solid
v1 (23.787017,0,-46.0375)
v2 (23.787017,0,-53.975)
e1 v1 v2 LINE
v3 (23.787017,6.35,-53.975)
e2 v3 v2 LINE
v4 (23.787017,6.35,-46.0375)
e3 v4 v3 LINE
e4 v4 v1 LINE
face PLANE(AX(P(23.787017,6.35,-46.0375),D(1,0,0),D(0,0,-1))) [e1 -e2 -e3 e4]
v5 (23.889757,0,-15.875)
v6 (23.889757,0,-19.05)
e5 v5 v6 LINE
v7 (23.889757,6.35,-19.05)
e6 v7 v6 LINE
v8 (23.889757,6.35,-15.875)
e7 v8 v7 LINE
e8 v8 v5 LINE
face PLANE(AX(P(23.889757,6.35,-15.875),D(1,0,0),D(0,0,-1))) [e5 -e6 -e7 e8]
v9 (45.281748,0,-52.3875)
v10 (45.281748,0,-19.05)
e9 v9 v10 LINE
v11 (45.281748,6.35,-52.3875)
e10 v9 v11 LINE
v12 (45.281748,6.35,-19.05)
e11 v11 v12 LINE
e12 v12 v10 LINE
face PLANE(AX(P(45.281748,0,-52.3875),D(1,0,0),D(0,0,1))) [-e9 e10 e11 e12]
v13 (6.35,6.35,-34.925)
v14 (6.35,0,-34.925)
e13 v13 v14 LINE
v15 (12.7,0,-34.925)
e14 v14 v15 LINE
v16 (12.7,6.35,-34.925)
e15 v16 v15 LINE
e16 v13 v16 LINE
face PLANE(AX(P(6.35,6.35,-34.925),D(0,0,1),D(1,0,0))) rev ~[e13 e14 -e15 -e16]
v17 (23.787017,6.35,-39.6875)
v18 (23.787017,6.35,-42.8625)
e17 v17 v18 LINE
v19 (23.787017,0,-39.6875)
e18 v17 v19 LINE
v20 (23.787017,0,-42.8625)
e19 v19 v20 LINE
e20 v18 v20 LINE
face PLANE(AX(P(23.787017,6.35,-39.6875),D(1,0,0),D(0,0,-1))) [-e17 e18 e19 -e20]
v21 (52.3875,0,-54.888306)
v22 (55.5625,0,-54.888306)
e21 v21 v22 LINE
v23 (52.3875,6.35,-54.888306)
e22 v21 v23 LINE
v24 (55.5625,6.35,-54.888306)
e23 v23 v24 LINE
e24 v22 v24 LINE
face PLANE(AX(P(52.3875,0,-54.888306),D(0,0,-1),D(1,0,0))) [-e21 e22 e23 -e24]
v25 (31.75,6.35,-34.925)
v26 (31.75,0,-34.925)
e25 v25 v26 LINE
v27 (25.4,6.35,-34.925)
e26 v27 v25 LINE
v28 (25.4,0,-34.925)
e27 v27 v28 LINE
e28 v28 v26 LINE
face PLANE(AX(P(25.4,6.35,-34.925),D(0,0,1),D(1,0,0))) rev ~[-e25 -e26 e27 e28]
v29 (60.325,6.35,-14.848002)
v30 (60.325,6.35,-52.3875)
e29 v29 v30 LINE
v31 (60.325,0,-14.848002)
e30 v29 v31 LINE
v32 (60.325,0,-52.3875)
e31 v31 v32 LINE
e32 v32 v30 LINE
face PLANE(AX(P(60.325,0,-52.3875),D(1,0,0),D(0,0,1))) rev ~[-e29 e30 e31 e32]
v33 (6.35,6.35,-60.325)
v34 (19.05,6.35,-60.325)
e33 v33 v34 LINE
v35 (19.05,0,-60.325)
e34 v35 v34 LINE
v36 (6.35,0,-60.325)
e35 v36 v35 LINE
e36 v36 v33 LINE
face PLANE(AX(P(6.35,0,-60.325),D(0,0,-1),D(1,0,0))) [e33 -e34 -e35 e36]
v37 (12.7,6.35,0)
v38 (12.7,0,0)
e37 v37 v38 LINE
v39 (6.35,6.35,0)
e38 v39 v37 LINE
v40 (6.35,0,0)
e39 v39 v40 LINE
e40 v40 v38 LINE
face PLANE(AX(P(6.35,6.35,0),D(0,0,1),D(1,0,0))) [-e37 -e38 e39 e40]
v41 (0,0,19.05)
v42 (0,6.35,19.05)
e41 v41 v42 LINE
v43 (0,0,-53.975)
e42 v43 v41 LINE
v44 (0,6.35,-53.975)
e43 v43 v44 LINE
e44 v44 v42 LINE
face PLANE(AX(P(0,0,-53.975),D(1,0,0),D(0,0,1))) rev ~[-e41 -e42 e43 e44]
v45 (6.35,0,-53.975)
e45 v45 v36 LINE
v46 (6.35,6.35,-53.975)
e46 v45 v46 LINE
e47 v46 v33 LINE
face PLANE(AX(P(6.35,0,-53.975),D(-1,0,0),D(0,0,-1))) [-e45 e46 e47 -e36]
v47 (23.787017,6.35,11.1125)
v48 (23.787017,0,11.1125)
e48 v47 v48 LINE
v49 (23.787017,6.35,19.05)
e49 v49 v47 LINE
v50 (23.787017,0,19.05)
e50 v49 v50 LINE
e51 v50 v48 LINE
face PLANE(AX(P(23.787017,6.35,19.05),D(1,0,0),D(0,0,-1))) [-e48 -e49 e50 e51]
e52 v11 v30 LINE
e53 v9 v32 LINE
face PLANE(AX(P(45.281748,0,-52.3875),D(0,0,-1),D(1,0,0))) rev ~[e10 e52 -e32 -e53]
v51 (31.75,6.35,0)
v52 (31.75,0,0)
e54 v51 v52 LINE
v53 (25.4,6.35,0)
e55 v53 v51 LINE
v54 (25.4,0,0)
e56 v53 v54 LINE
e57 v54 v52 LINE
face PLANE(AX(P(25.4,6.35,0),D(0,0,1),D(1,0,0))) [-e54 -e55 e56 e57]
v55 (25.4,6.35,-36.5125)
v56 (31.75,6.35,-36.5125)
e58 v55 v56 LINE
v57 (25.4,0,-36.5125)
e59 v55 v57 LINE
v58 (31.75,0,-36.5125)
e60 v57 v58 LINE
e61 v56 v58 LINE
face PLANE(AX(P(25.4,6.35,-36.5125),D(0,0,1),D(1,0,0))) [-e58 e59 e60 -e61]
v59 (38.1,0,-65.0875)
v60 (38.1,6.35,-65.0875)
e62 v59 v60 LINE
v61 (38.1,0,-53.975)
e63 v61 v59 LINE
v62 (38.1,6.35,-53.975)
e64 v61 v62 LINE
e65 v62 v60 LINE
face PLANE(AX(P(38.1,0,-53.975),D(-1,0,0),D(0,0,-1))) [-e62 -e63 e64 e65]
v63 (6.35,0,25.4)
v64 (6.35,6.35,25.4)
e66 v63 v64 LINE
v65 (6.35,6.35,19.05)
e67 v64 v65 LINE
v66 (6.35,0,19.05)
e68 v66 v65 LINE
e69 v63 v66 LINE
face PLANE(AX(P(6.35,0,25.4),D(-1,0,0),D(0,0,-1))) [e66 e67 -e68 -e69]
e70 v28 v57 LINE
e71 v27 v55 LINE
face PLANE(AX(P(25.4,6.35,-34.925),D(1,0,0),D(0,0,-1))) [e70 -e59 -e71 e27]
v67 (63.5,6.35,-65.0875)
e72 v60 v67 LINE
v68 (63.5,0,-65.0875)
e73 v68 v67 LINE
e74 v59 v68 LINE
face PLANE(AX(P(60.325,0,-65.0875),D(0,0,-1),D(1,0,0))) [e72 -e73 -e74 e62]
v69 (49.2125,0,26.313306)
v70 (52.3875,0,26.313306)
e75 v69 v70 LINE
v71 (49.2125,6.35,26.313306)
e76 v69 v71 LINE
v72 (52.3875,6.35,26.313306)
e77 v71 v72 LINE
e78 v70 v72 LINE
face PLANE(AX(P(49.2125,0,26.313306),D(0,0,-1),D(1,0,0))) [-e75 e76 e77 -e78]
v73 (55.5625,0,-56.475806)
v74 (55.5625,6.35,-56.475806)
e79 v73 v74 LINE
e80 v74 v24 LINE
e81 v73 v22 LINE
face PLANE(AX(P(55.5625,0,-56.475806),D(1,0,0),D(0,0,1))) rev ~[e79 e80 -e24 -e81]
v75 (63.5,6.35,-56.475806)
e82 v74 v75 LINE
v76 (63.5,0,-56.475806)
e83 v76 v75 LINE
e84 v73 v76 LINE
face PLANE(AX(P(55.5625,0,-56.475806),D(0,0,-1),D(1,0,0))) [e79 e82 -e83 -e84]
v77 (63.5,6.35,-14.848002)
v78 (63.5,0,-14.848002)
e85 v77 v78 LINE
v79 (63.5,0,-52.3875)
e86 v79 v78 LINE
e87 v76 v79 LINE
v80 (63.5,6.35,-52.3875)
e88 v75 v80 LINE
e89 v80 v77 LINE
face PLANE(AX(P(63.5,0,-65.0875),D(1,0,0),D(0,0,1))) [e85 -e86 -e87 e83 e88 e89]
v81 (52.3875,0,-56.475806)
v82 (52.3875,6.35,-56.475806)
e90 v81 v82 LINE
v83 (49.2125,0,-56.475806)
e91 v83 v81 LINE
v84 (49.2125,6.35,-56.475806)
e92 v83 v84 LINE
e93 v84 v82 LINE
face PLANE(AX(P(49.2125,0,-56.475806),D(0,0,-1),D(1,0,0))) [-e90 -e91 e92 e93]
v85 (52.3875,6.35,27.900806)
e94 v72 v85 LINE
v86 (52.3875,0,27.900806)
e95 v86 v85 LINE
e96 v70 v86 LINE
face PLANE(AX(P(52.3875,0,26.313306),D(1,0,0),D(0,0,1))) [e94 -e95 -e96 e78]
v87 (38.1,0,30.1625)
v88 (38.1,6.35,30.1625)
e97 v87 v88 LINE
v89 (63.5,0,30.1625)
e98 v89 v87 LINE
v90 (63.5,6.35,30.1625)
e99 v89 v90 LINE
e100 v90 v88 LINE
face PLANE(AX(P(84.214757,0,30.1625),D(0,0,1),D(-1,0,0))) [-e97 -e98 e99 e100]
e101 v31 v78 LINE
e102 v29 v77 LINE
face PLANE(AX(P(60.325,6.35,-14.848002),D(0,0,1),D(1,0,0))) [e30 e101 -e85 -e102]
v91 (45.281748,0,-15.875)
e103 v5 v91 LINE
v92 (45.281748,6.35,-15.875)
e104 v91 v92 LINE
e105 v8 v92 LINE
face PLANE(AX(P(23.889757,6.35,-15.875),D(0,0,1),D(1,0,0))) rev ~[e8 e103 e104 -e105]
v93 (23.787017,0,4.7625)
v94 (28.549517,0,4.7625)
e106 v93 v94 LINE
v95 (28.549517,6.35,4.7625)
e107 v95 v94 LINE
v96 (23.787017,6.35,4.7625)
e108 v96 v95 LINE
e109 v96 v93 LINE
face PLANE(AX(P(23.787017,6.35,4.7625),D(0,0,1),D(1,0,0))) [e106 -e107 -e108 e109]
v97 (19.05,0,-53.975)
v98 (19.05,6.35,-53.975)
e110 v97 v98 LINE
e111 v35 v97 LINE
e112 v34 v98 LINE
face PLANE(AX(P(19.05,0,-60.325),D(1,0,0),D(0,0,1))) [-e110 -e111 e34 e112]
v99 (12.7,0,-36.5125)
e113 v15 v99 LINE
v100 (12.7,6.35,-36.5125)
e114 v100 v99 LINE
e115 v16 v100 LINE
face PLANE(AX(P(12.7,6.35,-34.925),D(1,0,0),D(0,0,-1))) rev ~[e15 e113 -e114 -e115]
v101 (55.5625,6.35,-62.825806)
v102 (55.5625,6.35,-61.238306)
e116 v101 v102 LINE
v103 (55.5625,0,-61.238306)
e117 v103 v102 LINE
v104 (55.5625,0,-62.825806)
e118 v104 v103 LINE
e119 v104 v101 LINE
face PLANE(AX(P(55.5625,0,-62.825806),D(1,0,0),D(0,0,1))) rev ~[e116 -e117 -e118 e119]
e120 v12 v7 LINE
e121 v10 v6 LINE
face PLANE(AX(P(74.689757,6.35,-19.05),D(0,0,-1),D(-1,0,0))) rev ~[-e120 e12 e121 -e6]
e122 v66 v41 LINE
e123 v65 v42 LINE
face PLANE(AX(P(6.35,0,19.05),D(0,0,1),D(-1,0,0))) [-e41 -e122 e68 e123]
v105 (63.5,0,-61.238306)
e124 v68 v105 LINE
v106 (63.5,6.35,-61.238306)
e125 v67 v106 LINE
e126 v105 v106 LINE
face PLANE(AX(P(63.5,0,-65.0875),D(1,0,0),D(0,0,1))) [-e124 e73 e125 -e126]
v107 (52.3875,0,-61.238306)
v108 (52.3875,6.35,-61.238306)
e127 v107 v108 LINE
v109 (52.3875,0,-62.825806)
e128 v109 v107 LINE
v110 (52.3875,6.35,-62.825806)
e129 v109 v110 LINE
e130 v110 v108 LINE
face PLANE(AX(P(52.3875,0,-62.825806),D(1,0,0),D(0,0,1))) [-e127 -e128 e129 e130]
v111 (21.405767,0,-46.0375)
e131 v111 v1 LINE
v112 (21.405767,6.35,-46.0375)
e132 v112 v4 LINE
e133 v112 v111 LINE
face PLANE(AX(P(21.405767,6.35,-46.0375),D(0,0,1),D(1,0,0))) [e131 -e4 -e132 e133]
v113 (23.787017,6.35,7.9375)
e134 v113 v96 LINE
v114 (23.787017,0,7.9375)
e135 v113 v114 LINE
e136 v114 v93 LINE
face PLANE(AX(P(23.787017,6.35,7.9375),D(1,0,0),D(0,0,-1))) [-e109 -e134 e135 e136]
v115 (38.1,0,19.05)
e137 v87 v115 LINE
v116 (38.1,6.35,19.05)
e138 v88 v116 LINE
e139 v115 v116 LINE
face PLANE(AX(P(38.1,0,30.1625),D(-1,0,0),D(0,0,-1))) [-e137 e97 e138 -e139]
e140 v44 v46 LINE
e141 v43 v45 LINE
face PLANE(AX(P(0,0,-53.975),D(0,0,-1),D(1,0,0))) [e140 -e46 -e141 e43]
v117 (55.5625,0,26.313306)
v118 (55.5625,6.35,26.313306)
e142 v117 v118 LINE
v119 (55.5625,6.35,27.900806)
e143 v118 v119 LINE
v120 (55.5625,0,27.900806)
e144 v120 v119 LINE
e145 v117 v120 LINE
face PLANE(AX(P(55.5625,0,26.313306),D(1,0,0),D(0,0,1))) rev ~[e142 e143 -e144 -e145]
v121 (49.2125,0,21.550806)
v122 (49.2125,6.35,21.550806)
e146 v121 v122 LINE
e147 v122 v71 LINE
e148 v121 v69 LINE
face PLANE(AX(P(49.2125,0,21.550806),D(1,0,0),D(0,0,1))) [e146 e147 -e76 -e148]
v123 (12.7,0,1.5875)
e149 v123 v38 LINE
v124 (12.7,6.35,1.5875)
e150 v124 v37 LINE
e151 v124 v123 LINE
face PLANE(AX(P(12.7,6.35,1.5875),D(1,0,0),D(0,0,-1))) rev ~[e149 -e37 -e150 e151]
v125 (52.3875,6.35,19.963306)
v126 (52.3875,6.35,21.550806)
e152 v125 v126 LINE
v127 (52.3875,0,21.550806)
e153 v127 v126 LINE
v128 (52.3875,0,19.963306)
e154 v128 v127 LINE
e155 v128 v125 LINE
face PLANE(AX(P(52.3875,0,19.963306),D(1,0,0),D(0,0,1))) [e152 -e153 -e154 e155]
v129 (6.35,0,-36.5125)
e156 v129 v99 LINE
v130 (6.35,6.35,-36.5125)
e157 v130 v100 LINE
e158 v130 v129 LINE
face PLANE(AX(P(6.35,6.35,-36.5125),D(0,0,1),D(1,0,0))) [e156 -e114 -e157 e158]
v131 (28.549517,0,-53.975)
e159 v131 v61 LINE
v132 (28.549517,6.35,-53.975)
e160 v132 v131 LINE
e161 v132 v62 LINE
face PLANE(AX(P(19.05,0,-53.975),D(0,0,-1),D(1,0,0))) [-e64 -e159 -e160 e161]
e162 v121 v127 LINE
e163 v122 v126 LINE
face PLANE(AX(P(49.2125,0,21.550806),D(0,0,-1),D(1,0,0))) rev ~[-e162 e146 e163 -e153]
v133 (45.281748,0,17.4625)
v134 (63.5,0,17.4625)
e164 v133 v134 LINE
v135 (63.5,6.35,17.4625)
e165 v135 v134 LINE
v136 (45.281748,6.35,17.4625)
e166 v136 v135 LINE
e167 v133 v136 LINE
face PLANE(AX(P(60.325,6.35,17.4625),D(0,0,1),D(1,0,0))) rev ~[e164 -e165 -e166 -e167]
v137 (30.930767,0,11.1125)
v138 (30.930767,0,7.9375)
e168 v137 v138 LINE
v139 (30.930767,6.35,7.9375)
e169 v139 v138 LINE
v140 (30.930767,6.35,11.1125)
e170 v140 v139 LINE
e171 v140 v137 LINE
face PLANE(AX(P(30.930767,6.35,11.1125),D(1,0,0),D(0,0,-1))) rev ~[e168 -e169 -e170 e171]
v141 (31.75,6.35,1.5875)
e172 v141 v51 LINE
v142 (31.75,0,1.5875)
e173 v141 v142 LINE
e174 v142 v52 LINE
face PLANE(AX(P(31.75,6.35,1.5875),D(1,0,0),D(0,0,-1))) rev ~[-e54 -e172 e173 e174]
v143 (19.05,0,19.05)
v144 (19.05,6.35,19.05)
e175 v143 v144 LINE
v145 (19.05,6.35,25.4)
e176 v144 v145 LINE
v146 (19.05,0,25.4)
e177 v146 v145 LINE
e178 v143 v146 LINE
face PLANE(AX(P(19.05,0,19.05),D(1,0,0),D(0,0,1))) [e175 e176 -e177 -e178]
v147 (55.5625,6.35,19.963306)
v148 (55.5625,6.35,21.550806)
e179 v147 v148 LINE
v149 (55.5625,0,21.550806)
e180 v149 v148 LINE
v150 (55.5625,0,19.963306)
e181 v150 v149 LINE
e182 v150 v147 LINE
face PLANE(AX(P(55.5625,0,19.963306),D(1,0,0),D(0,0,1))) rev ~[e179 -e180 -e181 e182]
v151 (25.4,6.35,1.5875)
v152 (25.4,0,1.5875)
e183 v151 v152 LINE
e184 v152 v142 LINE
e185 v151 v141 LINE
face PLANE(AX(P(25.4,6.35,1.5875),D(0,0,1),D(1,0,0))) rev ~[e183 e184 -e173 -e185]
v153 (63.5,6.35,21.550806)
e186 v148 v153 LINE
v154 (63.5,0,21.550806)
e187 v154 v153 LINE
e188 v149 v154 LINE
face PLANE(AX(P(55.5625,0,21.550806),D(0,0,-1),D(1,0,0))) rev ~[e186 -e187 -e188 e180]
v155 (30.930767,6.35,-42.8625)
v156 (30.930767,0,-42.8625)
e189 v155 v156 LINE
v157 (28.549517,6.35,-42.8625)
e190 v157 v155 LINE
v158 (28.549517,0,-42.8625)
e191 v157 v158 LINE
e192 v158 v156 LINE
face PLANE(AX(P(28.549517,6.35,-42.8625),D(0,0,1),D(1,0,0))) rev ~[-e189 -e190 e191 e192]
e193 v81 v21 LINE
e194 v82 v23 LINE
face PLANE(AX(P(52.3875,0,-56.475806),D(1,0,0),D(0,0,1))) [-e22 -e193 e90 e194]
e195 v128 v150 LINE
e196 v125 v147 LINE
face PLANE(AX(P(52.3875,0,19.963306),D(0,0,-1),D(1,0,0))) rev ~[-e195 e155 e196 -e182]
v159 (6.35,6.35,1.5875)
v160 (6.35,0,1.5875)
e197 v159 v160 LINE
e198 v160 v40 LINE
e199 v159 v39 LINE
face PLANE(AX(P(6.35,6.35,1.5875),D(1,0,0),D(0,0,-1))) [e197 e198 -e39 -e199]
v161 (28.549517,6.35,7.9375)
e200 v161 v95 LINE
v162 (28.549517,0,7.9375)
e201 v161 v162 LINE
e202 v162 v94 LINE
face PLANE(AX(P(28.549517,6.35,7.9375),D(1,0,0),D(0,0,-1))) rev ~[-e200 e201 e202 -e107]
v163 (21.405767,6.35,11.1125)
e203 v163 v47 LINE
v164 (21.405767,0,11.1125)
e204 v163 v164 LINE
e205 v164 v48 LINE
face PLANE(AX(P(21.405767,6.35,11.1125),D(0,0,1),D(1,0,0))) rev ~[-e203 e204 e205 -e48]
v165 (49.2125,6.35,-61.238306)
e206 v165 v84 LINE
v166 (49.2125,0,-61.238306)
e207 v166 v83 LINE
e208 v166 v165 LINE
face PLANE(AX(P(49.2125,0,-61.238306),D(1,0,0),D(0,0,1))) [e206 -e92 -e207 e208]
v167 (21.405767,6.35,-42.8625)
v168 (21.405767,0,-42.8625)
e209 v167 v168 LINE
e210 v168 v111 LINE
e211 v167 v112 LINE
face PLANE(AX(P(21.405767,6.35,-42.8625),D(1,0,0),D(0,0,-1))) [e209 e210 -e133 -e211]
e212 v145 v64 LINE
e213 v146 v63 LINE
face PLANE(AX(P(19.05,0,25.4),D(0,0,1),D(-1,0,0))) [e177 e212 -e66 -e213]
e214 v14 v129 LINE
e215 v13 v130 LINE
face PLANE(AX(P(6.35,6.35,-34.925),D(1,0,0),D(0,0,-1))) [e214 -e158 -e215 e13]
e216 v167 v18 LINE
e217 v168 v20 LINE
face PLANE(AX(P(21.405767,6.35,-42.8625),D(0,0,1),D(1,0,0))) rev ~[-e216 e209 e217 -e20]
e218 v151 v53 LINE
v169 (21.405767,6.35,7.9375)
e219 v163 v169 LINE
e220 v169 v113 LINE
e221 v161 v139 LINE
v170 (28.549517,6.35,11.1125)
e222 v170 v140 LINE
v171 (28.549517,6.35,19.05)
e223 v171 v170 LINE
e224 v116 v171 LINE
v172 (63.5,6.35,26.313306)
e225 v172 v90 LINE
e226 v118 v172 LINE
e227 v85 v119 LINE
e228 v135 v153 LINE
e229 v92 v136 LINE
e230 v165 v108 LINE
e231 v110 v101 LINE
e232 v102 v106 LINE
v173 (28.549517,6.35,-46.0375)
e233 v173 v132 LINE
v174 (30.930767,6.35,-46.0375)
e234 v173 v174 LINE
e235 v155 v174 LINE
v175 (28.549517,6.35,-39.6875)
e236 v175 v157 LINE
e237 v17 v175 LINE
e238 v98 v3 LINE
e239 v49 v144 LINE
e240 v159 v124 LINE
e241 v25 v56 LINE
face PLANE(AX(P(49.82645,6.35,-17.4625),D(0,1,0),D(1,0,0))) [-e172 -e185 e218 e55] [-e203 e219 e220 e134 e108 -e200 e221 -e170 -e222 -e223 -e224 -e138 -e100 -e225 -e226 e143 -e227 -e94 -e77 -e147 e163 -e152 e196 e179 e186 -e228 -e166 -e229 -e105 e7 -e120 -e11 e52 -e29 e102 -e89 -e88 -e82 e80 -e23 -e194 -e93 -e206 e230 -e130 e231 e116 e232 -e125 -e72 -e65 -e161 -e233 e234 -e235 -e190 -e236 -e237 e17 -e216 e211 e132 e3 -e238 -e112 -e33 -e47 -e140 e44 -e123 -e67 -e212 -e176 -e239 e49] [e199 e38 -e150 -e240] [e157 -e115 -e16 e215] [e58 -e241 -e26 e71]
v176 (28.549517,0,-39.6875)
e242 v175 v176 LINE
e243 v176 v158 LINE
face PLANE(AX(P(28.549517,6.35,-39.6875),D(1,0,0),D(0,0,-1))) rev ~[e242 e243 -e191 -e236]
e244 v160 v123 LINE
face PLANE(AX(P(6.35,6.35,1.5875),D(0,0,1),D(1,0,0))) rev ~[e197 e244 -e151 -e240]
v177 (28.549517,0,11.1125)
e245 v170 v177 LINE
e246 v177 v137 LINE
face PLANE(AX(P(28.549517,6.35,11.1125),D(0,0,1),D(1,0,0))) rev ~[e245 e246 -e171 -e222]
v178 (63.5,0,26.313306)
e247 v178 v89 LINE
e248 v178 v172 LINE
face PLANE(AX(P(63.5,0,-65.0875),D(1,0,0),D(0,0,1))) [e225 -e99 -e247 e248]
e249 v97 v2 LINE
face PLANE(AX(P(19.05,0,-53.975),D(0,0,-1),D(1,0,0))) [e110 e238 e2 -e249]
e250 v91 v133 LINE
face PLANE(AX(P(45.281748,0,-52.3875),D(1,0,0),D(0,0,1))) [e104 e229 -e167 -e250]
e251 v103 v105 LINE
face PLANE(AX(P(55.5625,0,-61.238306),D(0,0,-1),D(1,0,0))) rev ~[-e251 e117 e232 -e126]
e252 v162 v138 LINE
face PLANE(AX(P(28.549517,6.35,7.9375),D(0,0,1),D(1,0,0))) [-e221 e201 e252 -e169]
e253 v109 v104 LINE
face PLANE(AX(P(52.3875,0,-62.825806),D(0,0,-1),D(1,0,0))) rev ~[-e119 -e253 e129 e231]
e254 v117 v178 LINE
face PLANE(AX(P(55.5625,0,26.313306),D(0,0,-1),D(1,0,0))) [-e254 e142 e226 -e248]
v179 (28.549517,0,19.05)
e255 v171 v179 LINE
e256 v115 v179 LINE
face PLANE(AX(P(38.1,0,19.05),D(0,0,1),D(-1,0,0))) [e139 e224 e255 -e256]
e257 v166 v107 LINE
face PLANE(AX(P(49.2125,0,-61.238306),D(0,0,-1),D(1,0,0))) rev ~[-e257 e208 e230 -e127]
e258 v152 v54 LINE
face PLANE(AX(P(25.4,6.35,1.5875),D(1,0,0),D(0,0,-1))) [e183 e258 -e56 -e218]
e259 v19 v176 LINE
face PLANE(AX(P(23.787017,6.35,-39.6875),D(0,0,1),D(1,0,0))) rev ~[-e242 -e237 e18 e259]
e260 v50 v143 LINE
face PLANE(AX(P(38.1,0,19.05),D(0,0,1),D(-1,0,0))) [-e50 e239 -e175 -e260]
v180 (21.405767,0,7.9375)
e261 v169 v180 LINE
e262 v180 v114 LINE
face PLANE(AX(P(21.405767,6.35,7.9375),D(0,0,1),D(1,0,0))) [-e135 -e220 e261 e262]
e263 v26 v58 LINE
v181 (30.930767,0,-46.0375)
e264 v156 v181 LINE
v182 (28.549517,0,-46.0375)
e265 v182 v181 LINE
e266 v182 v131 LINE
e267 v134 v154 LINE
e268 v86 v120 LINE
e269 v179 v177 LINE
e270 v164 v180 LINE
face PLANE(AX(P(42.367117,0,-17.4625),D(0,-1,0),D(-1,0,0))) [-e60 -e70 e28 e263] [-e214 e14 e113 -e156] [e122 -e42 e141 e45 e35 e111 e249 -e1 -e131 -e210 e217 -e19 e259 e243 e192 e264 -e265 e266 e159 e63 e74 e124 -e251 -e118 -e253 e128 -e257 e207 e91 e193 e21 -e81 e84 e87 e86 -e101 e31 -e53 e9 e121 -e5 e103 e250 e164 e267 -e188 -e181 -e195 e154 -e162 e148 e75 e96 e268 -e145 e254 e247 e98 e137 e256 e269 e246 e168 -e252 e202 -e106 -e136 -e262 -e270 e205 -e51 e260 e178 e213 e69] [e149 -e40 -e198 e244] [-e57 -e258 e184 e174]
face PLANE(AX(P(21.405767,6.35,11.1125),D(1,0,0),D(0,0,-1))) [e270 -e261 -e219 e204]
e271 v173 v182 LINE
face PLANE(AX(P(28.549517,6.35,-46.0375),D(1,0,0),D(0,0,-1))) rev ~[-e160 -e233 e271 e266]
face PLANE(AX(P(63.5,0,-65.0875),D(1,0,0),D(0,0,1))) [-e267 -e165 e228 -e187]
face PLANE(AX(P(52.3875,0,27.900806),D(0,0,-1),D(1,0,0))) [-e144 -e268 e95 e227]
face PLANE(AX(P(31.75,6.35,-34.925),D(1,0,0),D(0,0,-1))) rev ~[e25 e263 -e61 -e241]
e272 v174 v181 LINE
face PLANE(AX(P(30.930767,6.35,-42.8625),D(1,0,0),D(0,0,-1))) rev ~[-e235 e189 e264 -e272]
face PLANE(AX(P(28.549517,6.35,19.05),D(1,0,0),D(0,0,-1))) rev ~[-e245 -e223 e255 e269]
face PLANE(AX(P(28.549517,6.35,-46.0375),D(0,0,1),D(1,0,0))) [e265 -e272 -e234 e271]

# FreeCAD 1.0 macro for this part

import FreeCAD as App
import Part
import Sketcher
Q = App.Units.Quantity

doc = App.newDocument("Part")
body = doc.addObject("PartDesign::Body", "Body")

sketch1 = body.newObject("Sketcher::SketchObject", "Sketch")
sketch1.AttachmentSupport = (doc.getObject("XZ_Plane"), [""])
sketch1.MapMode = "FlatFace"
sketch1.addGeometry([
    Part.LineSegment(App.Vector(84.2, -65.1, 0), App.Vector(38.1, -65.1, 0)),
    Part.LineSegment(App.Vector(38.1, -65.1, 0), App.Vector(38.1, -54, 0)),
    Part.LineSegment(App.Vector(38.1, -54, 0), App.Vector(19.1, -54, 0)),
    Part.LineSegment(App.Vector(19.1, -54, 0), App.Vector(19.1, -60.3, 0)),
    Part.LineSegment(App.Vector(19.1, -60.3, 0), App.Vector(6.3, -60.3, 0)),
    Part.LineSegment(App.Vector(6.3, -60.3, 0), App.Vector(6.3, -54, 0)),
    Part.LineSegment(App.Vector(6.3, -54, 0), App.Vector(0, -54, 0)),
    Part.LineSegment(App.Vector(0, -54, 0), App.Vector(0, 19.1, 0)),
    Part.LineSegment(App.Vector(0, 19.1, 0), App.Vector(6.3, 19.1, 0)),
    Part.LineSegment(App.Vector(6.3, 19.1, 0), App.Vector(6.3, 25.4, 0)),
    Part.LineSegment(App.Vector(6.3, 25.4, 0), App.Vector(19.1, 25.4, 0)),
    Part.LineSegment(App.Vector(19.1, 25.4, 0), App.Vector(19.1, 19.1, 0)),
    Part.LineSegment(App.Vector(19.1, 19.1, 0), App.Vector(38.1, 19.1, 0)),
    Part.LineSegment(App.Vector(38.1, 19.1, 0), App.Vector(38.1, 30.2, 0)),
    Part.LineSegment(App.Vector(38.1, 30.2, 0), App.Vector(84.2, 30.2, 0)),
    Part.LineSegment(App.Vector(84.2, 30.2, 0), App.Vector(84.2, -65.1, 0)),
    Part.LineSegment(App.Vector(38.1, -34.9, 0), App.Vector(44.5, -38.6, 0)),
    Part.LineSegment(App.Vector(44.5, -38.6, 0), App.Vector(44.5, -52.4, 0)),
    Part.LineSegment(App.Vector(44.5, -52.4, 0), App.Vector(74.7, -52.4, 0)),
    Part.LineSegment(App.Vector(74.7, -52.4, 0), App.Vector(77.9, -50.8, 0)),
    Part.LineSegment(App.Vector(77.9, -50.8, 0), App.Vector(77.9, 15.9, 0)),
    Part.LineSegment(App.Vector(77.9, 15.9, 0), App.Vector(74.7, 17.5, 0)),
    Part.LineSegment(App.Vector(74.7, 17.5, 0), App.Vector(44.5, 17.5, 0)),
    Part.LineSegment(App.Vector(44.5, 17.5, 0), App.Vector(44.5, 3.7, 0)),
    Part.LineSegment(App.Vector(44.5, 3.7, 0), App.Vector(38.1, 0, 0)),
    Part.LineSegment(App.Vector(38.1, 0, 0), App.Vector(38.1, -34.9, 0)),
], False)
sketch1.addConstraint([
    Sketcher.Constraint("Coincident", 0, 2, 1, 1),
    Sketcher.Constraint("Coincident", 1, 2, 2, 1),
    Sketcher.Constraint("Coincident", 2, 2, 3, 1),
    Sketcher.Constraint("Coincident", 3, 2, 4, 1),
    Sketcher.Constraint("Coincident", 4, 2, 5, 1),
    Sketcher.Constraint("Coincident", 5, 2, 6, 1),
    Sketcher.Constraint("Coincident", 6, 2, 7, 1),
    Sketcher.Constraint("Coincident", 7, 2, 8, 1),
    Sketcher.Constraint("Coincident", 8, 2, 9, 1),
    Sketcher.Constraint("Coincident", 9, 2, 10, 1),
    Sketcher.Constraint("Coincident", 10, 2, 11, 1),
    Sketcher.Constraint("Coincident", 11, 2, 12, 1),
    Sketcher.Constraint("Coincident", 12, 2, 13, 1),
    Sketcher.Constraint("Coincident", 13, 2, 14, 1),
    Sketcher.Constraint("Coincident", 14, 2, 15, 1),
    Sketcher.Constraint("Coincident", 15, 2, 0, 1),
    Sketcher.Constraint("Coincident", 16, 2, 17, 1),
    Sketcher.Constraint("Coincident", 17, 2, 18, 1),
    Sketcher.Constraint("Coincident", 18, 2, 19, 1),
    Sketcher.Constraint("Coincident", 19, 2, 20, 1),
    Sketcher.Constraint("Coincident", 20, 2, 21, 1),
    Sketcher.Constraint("Coincident", 21, 2, 22, 1),
    Sketcher.Constraint("Coincident", 22, 2, 23, 1),
    Sketcher.Constraint("Coincident", 23, 2, 24, 1),
    Sketcher.Constraint("Coincident", 24, 2, 25, 1),
    Sketcher.Constraint("Coincident", 25, 2, 16, 1),
    Sketcher.Constraint("Horizontal", 0),
    Sketcher.Constraint("Vertical", 1),
    Sketcher.Constraint("Horizontal", 2),
    Sketcher.Constraint("Vertical", 3),
    Sketcher.Constraint("Horizontal", 4),
    Sketcher.Constraint("Vertical", 5),
    Sketcher.Constraint("Horizontal", 6),
    Sketcher.Constraint("Vertical", 7),
    Sketcher.Constraint("Horizontal", 8),
    Sketcher.Constraint("Vertical", 9),
    Sketcher.Constraint("Horizontal", 10),
    Sketcher.Constraint("Vertical", 11),
    Sketcher.Constraint("Horizontal", 12),
    Sketcher.Constraint("Vertical", 13),
    Sketcher.Constraint("Horizontal", 14),
    Sketcher.Constraint("Vertical", 15),
    Sketcher.Constraint("Vertical", 17),
    Sketcher.Constraint("Horizontal", 18),
    Sketcher.Constraint("Vertical", 20),
    Sketcher.Constraint("Horizontal", 22),
    Sketcher.Constraint("Vertical", 23),
    Sketcher.Constraint("Vertical", 25),
    Sketcher.Constraint("PointOnObject", 6, 2, -2),
    Sketcher.Constraint("PointOnObject", 24, 2, -1),
    Sketcher.Constraint("Horizontal", 2, 2, 5, 2),
    Sketcher.Constraint("Horizontal", 8, 2, 11, 2),
    Sketcher.Constraint("Vertical", 5, 2, 8, 2),
    Sketcher.Constraint("Vertical", 3, 2, 10, 2),
    Sketcher.Constraint("Vertical", 1, 2, 12, 2),
    Sketcher.Constraint("Vertical", 18, 2, 21, 2),
    Sketcher.Constraint("Vertical", 17, 2, 22, 2),
    Sketcher.Constraint("Vertical", 13, 2, 24, 2),
    Sketcher.Constraint("Equal", 8, 3),
    Sketcher.Constraint("Equal", 5, 9),
    Sketcher.Constraint("Equal", 1, 13),
    Sketcher.Constraint("Equal", 17, 23),
    Sketcher.Constraint("Equal", 19, 21),
    Sketcher.Constraint("Equal", 16, 24),
    Sketcher.Constraint("DistanceX", 4, 2, 4, 1, Q("0.5 in")),
    Sketcher.Constraint("DistanceY", -1, 1, 9, 2, Q("1 in")),
    Sketcher.Constraint("DistanceY", 19, 2, -1, 1, Q("2 in")),
    Sketcher.Constraint("Angle", 16, Q("-30 deg")),
    Sketcher.Constraint("DistanceX", 2, 2, 16, 2, Q("1 in")),
    Sketcher.Constraint("DistanceX", 2, 2, 2, 1, Q("0.75 in")),
    Sketcher.Constraint("DistanceX", 6, 2, 6, 1, Q("0.25 in")),
    Sketcher.Constraint("DistanceY", 15, 2, 15, 1, Q("3.75 in")),
    Sketcher.Constraint("DistanceY", 0, 2, 17, 2, Q("0.5 in")),
    Sketcher.Constraint("DistanceY", 21, 2, 14, 2, Q("0.5 in")),
    Sketcher.Constraint("DistanceY", 1, 1, 1, 2, Q("0.4375 in")),
    Sketcher.Constraint("DistanceX", 19, 2, 15, 2, Q("0.25 in")),
    Sketcher.Constraint("DistanceX", 18, 2, 15, 2, Q("0.375 in")),
    Sketcher.Constraint("DistanceX", 0, 2, 0, 1, 46.114757),
])
pad1 = body.newObject("PartDesign::Pad", "Pad")
pad1.Profile = sketch1
pad1.Length = Q("0.25 in")
pad1.Reversed = True

sketch2 = body.newObject("Sketcher::SketchObject", "Sketch001")
sketch2.AttachmentSupport = (doc.getObject("XZ_Plane"), [""])
sketch2.MapMode = "FlatFace"
sketch2.AttachmentOffset = App.Placement(App.Vector(0, 0, -0.25 * 25.4), App.Rotation())
sketch2.addGeometry([
    Part.LineSegment(App.Vector(6.3, -36.5, 0), App.Vector(6.3, -34.9, 0)),
    Part.LineSegment(App.Vector(6.3, -34.9, 0), App.Vector(12.7, -34.9, 0)),
    Part.LineSegment(App.Vector(12.7, -34.9, 0), App.Vector(12.7, -36.5, 0)),
    Part.LineSegment(App.Vector(12.7, -36.5, 0), App.Vector(6.3, -36.5, 0)),
    Part.LineSegment(App.Vector(6.3, 0, 0), App.Vector(6.3, 1.6, 0)),
    Part.LineSegment(App.Vector(6.3, 1.6, 0), App.Vector(12.7, 1.6, 0)),
    Part.LineSegment(App.Vector(12.7, 1.6, 0), App.Vector(12.7, 0, 0)),
    Part.LineSegment(App.Vector(12.7, 0, 0), App.Vector(6.3, 0, 0)),
    Part.LineSegment(App.Vector(25.4, -36.5, 0), App.Vector(25.4, -34.9, 0)),
    Part.LineSegment(App.Vector(25.4, -34.9, 0), App.Vector(31.8, -34.9, 0)),
    Part.LineSegment(App.Vector(31.8, -34.9, 0), App.Vector(31.8, -36.5, 0)),
    Part.LineSegment(App.Vector(31.8, -36.5, 0), App.Vector(25.4, -36.5, 0)),
    Part.LineSegment(App.Vector(25.4, 0, 0), App.Vector(25.4, 1.6, 0)),
    Part.LineSegment(App.Vector(25.4, 1.6, 0), App.Vector(31.8, 1.6, 0)),
    Part.LineSegment(App.Vector(31.8, 1.6, 0), App.Vector(31.8, 0, 0)),
    Part.LineSegment(App.Vector(31.8, 0, 0), App.Vector(25.4, 0, 0)),
], False)
sketch2.addConstraint([
    Sketcher.Constraint("Coincident", 0, 2, 1, 1),
    Sketcher.Constraint("Coincident", 1, 2, 2, 1),
    Sketcher.Constraint("Coincident", 2, 2, 3, 1),
    Sketcher.Constraint("Coincident", 3, 2, 0, 1),
    Sketcher.Constraint("Coincident", 4, 2, 5, 1),
    Sketcher.Constraint("Coincident", 5, 2, 6, 1),
    Sketcher.Constraint("Coincident", 6, 2, 7, 1),
    Sketcher.Constraint("Coincident", 7, 2, 4, 1),
    Sketcher.Constraint("Coincident", 8, 2, 9, 1),
    Sketcher.Constraint("Coincident", 9, 2, 10, 1),
    Sketcher.Constraint("Coincident", 10, 2, 11, 1),
    Sketcher.Constraint("Coincident", 11, 2, 8, 1),
    Sketcher.Constraint("Coincident", 12, 2, 13, 1),
    Sketcher.Constraint("Coincident", 13, 2, 14, 1),
    Sketcher.Constraint("Coincident", 14, 2, 15, 1),
    Sketcher.Constraint("Coincident", 15, 2, 12, 1),
    Sketcher.Constraint("Vertical", 0),
    Sketcher.Constraint("Horizontal", 1),
    Sketcher.Constraint("Vertical", 2),
    Sketcher.Constraint("Horizontal", 3),
    Sketcher.Constraint("Vertical", 4),
    Sketcher.Constraint("Horizontal", 5),
    Sketcher.Constraint("Vertical", 6),
    Sketcher.Constraint("Horizontal", 7),
    Sketcher.Constraint("Vertical", 8),
    Sketcher.Constraint("Horizontal", 9),
    Sketcher.Constraint("Vertical", 10),
    Sketcher.Constraint("Horizontal", 11),
    Sketcher.Constraint("Vertical", 12),
    Sketcher.Constraint("Horizontal", 13),
    Sketcher.Constraint("Vertical", 14),
    Sketcher.Constraint("Horizontal", 15),
    Sketcher.Constraint("PointOnObject", 6, 2, -1),
    Sketcher.Constraint("PointOnObject", 14, 2, -1),
    Sketcher.Constraint("Horizontal", 1, 2, 8, 2),
    Sketcher.Constraint("Horizontal", 3, 2, 10, 2),
    Sketcher.Constraint("Horizontal", 5, 2, 12, 2),
    Sketcher.Constraint("Vertical", 3, 2, 4, 2),
    Sketcher.Constraint("Vertical", 2, 2, 5, 2),
    Sketcher.Constraint("Vertical", 11, 2, 12, 2),
    Sketcher.Constraint("Vertical", 10, 2, 13, 2),
    Sketcher.Constraint("Equal", 7, 9),
    Sketcher.Constraint("Equal", 2, 4),
    Sketcher.Constraint("DistanceX", -1, 1, 8, 2, Q("1 in")),
    Sketcher.Constraint("DistanceX", 0, 2, 9, 2, Q("1 in")),
    Sketcher.Constraint("DistanceX", 1, 1, 1, 2, Q("0.25 in")),
    Sketcher.Constraint("DistanceY", 3, 2, 4, 2, Q("1.5 in")),
    Sketcher.Constraint("DistanceY", 0, 1, 0, 2, Q("0.0625 in")),
])
pocket1 = body.newObject("PartDesign::Pocket", "Pocket")
pocket1.Profile = sketch2
pocket1.Length = Q("0.25 in")
pocket1.Reversed = True

sketch3 = body.newObject("Sketcher::SketchObject", "Sketch002")
sketch3.AttachmentSupport = (doc.getObject("XZ_Plane"), [""])
sketch3.MapMode = "FlatFace"
sketch3.addGeometry([
    Part.LineSegment(App.Vector(38, -52, 0), App.Vector(38, 17, 0)),
    Part.LineSegment(App.Vector(38, 17, 0), App.Vector(62, 17, 0)),
    Part.LineSegment(App.Vector(62, 17, 0), App.Vector(62, -52, 0)),
    Part.LineSegment(App.Vector(62, -52, 0), App.Vector(38, -52, 0)),
], False)
sketch3.addConstraint([
    Sketcher.Constraint("Coincident", 0, 2, 1, 1),
    Sketcher.Constraint("Coincident", 1, 2, 2, 1),
    Sketcher.Constraint("Coincident", 2, 2, 3, 1),
    Sketcher.Constraint("Coincident", 3, 2, 0, 1),
    Sketcher.Constraint("Vertical", 0),
    Sketcher.Constraint("Horizontal", 1),
    Sketcher.Constraint("Vertical", 2),
    Sketcher.Constraint("Horizontal", 3),
    Sketcher.Constraint("DistanceY", 0, 1, 0, 2, Q("2.75 in")),
    Sketcher.Constraint("DistanceY", -1, 1, 0, 2, Q("0.6875 in")),
    Sketcher.Constraint("DistanceX", 1, 1, 1, 2, 24.326613),
    Sketcher.Constraint("DistanceX", -1, 1, 0, 2, 37.663143),
])
pad2 = body.newObject("PartDesign::Pad", "Pad001")
pad2.Profile = sketch3
pad2.Length = Q("0.25 in")
pad2.Reversed = True

sketch4 = body.newObject("Sketcher::SketchObject", "Sketch003")
sketch4.AttachmentSupport = (doc.getObject("XZ_Plane"), [""])
sketch4.MapMode = "FlatFace"
sketch4.AttachmentOffset = App.Placement(App.Vector(0, 0, -0.25 * 25.4), App.Rotation())
sketch4.addGeometry([
    Part.LineSegment(App.Vector(74.7, -15.9, 0), App.Vector(74.7, -19.1, 0)),
    Part.LineSegment(App.Vector(74.7, -19.1, 0), App.Vector(23.9, -19.1, 0)),
    Part.LineSegment(App.Vector(23.9, -19.1, 0), App.Vector(23.9, -15.9, 0)),
    Part.LineSegment(App.Vector(23.9, -15.9, 0), App.Vector(74.7, -15.9, 0)),
], False)
sketch4.addConstraint([
    Sketcher.Constraint("Coincident", 0, 2, 1, 1),
    Sketcher.Constraint("Coincident", 1, 2, 2, 1),
    Sketcher.Constraint("Coincident", 2, 2, 3, 1),
    Sketcher.Constraint("Coincident", 3, 2, 0, 1),
    Sketcher.Constraint("Vertical", 0),
    Sketcher.Constraint("Horizontal", 1),
    Sketcher.Constraint("Vertical", 2),
    Sketcher.Constraint("Horizontal", 3),
    Sketcher.Constraint("DistanceX", 1, 2, 1, 1, Q("2 in")),
    Sketcher.Constraint("DistanceY", 0, 2, 0, 1, Q("0.125 in")),
    Sketcher.Constraint("DistanceY", 0, 2, -1, 1, Q("0.75 in")),
    Sketcher.Constraint("DistanceX", -1, 1, 0, 2, 74.689757),
])
pocket2 = body.newObject("PartDesign::Pocket", "Pocket001")
pocket2.Profile = sketch4
pocket2.Length = Q("0.25 in")
pocket2.Reversed = True

sketch5 = body.newObject("Sketcher::SketchObject", "Sketch004")
sketch5.AttachmentSupport = (doc.getObject("XZ_Plane"), [""])
sketch5.MapMode = "FlatFace"
sketch5.AttachmentOffset = App.Placement(App.Vector(0, 0, -0.25 * 25.4), App.Rotation())
sketch5.addGeometry([
    Part.LineSegment(App.Vector(81, -65, 0), App.Vector(81, 30, 0)),
    Part.LineSegment(App.Vector(81, 30, 0), App.Vector(101, 30, 0)),
    Part.LineSegment(App.Vector(101, 30, 0), App.Vector(101, -65, 0)),
    Part.LineSegment(App.Vector(101, -65, 0), App.Vector(81, -65, 0)),
], False)
sketch5.addConstraint([
    Sketcher.Constraint("Coincident", 0, 2, 1, 1),
    Sketcher.Constraint("Coincident", 1, 2, 2, 1),
    Sketcher.Constraint("Coincident", 2, 2, 3, 1),
    Sketcher.Constraint("Coincident", 3, 2, 0, 1),
    Sketcher.Constraint("Vertical", 0),
    Sketcher.Constraint("Horizontal", 1),
    Sketcher.Constraint("Vertical", 2),
    Sketcher.Constraint("Horizontal", 3),
    Sketcher.Constraint("DistanceY", 0, 1, 0, 2, Q("3.75 in")),
    Sketcher.Constraint("DistanceY", -1, 1, 0, 2, Q("1.1875 in")),
    Sketcher.Constraint("DistanceX", 1, 1, 1, 2, 19.923597),
    Sketcher.Constraint("DistanceX", -1, 1, 0, 2, 81.039757),
])
pocket3 = body.newObject("PartDesign::Pocket", "Pocket002")
pocket3.Profile = sketch5
pocket3.Length = Q("0.25 in")
pocket3.Reversed = True

sketch6 = body.newObject("Sketcher::SketchObject", "Sketch005")
sketch6.AttachmentSupport = (doc.getObject("XZ_Plane"), [""])
sketch6.MapMode = "FlatFace"
sketch6.addGeometry([
    Part.LineSegment(App.Vector(45, 17, 0), App.Vector(45, -52, 0)),
    Part.LineSegment(App.Vector(45, -52, 0), App.Vector(60, -52, 0)),
    Part.LineSegment(App.Vector(60, -52, 0), App.Vector(60, 17, 0)),
    Part.LineSegment(App.Vector(60, 17, 0), App.Vector(45, 17, 0)),
], False)
sketch6.addConstraint([
    Sketcher.Constraint("Coincident", 0, 2, 1, 1),
    Sketcher.Constraint("Coincident", 1, 2, 2, 1),
    Sketcher.Constraint("Coincident", 2, 2, 3, 1),
    Sketcher.Constraint("Coincident", 3, 2, 0, 1),
    Sketcher.Constraint("Vertical", 0),
    Sketcher.Constraint("Horizontal", 1),
    Sketcher.Constraint("Vertical", 2),
    Sketcher.Constraint("Horizontal", 3),
    Sketcher.Constraint("DistanceY", 0, 2, 0, 1, Q("2.75 in")),
    Sketcher.Constraint("DistanceY", 0, 2, -1, 1, Q("2.0625 in")),
    Sketcher.Constraint("DistanceX", -1, 1, 1, 2, Q("2.375 in")),
    Sketcher.Constraint("DistanceX", 1, 1, 1, 2, 15.043252),
])
pocket4 = body.newObject("PartDesign::Pocket", "Pocket003")
pocket4.Profile = sketch6
pocket4.Length = Q("0.25 in")

sketch7 = body.newObject("Sketcher::SketchObject", "Sketch006")
sketch7.AttachmentSupport = (doc.getObject("XZ_Plane"), [""])
sketch7.MapMode = "FlatFace"
sketch7.addGeometry([
    Part.LineSegment(App.Vector(60.3, 30.2, 0), App.Vector(60.3, -65.1, 0)),
    Part.LineSegment(App.Vector(60.3, -65.1, 0), App.Vector(63.5, -65.1, 0)),
    Part.LineSegment(App.Vector(63.5, -65.1, 0), App.Vector(63.5, 30.2, 0)),
    Part.LineSegment(App.Vector(63.5, 30.2, 0), App.Vector(60.3, 30.2, 0)),
], False)
sketch7.addConstraint([
    Sketcher.Constraint("Coincident", 0, 2, 1, 1),
    Sketcher.Constraint("Coincident", 1, 2, 2, 1),
    Sketcher.Constraint("Coincident", 2, 2, 3, 1),
    Sketcher.Constraint("Coincident", 3, 2, 0, 1),
    Sketcher.Constraint("Vertical", 0),
    Sketcher.Constraint("Horizontal", 1),
    Sketcher.Constraint("Vertical", 2),
    Sketcher.Constraint("Horizontal", 3),
    Sketcher.Constraint("DistanceY", 0, 2, 0, 1, Q("3.75 in")),
    Sketcher.Constraint("DistanceX", -1, 1, 1, 2, Q("2.5 in")),
    Sketcher.Constraint("DistanceX", 1, 1, 1, 2, Q("0.125 in")),
    Sketcher.Constraint("DistanceY", 0, 2, -1, 1, Q("2.5625 in")),
])
pad3 = body.newObject("PartDesign::Pad", "Pad002")
pad3.Profile = sketch7
pad3.Length = Q("0.25 in")
pad3.Reversed = True

sketch8 = body.newObject("Sketcher::SketchObject", "Sketch007")
sketch8.AttachmentSupport = (doc.getObject("XZ_Plane"), [""])
sketch8.MapMode = "FlatFace"
sketch8.addGeometry([
    Part.LineSegment(App.Vector(64, 30, 0), App.Vector(64, -65, 0)),
    Part.LineSegment(App.Vector(64, -65, 0), App.Vector(81, -65, 0)),
    Part.LineSegment(App.Vector(81, -65, 0), App.Vector(81, 30, 0)),
    Part.LineSegment(App.Vector(81, 30, 0), App.Vector(64, 30, 0)),
], False)
sketch8.addConstraint([
    Sketcher.Constraint("Coincident", 0, 2, 1, 1),
    Sketcher.Constraint("Coincident", 1, 2, 2, 1),
    Sketcher.Constraint("Coincident", 2, 2, 3, 1),
    Sketcher.Constraint("Coincident", 3, 2, 0, 1),
    Sketcher.Constraint("Vertical", 0),
    Sketcher.Constraint("Horizontal", 1),
    Sketcher.Constraint("Vertical", 2),
    Sketcher.Constraint("Horizontal", 3),
    Sketcher.Constraint("DistanceY", 0, 2, 0, 1, Q("3.75 in")),
    Sketcher.Constraint("DistanceX", -1, 1, 0, 2, Q("2.5 in")),
    Sketcher.Constraint("DistanceY", 0, 2, -1, 1, Q("2.5625 in")),
    Sketcher.Constraint("DistanceX", 1, 1, 1, 2, 17.539757),
])
pocket5 = body.newObject("PartDesign::Pocket", "Pocket004")
pocket5.Profile = sketch8
pocket5.Length = Q("0.25 in")

sketch9 = body.newObject("Sketcher::SketchObject", "Sketch008")
sketch9.AttachmentSupport = (doc.getObject("XZ_Plane"), [""])
sketch9.MapMode = "FlatFace"
sketch9.AttachmentOffset = App.Placement(App.Vector(0, 0, -0.25 * 25.4), App.Rotation())
sketch9.addGeometry([
    Part.LineSegment(App.Vector(23.8, -42.9, 0), App.Vector(23.8, -39.7, 0)),
    Part.LineSegment(App.Vector(23.8, -39.7, 0), App.Vector(28.5, -39.7, 0)),
    Part.LineSegment(App.Vector(28.5, -39.7, 0), App.Vector(28.5, -42.9, 0)),
    Part.LineSegment(App.Vector(28.5, -42.9, 0), App.Vector(30.9, -42.9, 0)),
    Part.LineSegment(App.Vector(30.9, -42.9, 0), App.Vector(30.9, -46, 0)),
    Part.LineSegment(App.Vector(30.9, -46, 0), App.Vector(28.5, -46, 0)),
    Part.LineSegment(App.Vector(28.5, -46, 0), App.Vector(28.5, -54, 0)),
    Part.LineSegment(App.Vector(28.5, -54, 0), App.Vector(23.8, -54, 0)),
    Part.LineSegment(App.Vector(23.8, -54, 0), App.Vector(23.8, -46, 0)),
    Part.LineSegment(App.Vector(23.8, -46, 0), App.Vector(21.4, -46, 0)),
    Part.LineSegment(App.Vector(21.4, -46, 0), App.Vector(21.4, -42.9, 0)),
    Part.LineSegment(App.Vector(21.4, -42.9, 0), App.Vector(23.8, -42.9, 0)),
    Part.LineSegment(App.Vector(21.4, 7.9, 0), App.Vector(21.4, 11.1, 0)),
    Part.LineSegment(App.Vector(21.4, 11.1, 0), App.Vector(23.8, 11.1, 0)),
    Part.LineSegment(App.Vector(23.8, 11.1, 0), App.Vector(23.8, 19.1, 0)),
    Part.LineSegment(App.Vector(23.8, 19.1, 0), App.Vector(28.5, 19.1, 0)),
    Part.LineSegment(App.Vector(28.5, 19.1, 0), App.Vector(28.5, 11.1, 0)),
    Part.LineSegment(App.Vector(28.5, 11.1, 0), App.Vector(30.9, 11.1, 0)),
    Part.LineSegment(App.Vector(30.9, 11.1, 0), App.Vector(30.9, 7.9, 0)),
    Part.LineSegment(App.Vector(30.9, 7.9, 0), App.Vector(28.5, 7.9, 0)),
    Part.LineSegment(App.Vector(28.5, 7.9, 0), App.Vector(28.5, 4.8, 0)),
    Part.LineSegment(App.Vector(28.5, 4.8, 0), App.Vector(23.8, 4.8, 0)),
    Part.LineSegment(App.Vector(23.8, 4.8, 0), App.Vector(23.8, 7.9, 0)),
    Part.LineSegment(App.Vector(23.8, 7.9, 0), App.Vector(21.4, 7.9, 0)),
], False)
sketch9.addConstraint([
    Sketcher.Constraint("Coincident", 0, 2, 1, 1),
    Sketcher.Constraint("Coincident", 1, 2, 2, 1),
    Sketcher.Constraint("Coincident", 2, 2, 3, 1),
    Sketcher.Constraint("Coincident", 3, 2, 4, 1),
    Sketcher.Constraint("Coincident", 4, 2, 5, 1),
    Sketcher.Constraint("Coincident", 5, 2, 6, 1),
    Sketcher.Constraint("Coincident", 6, 2, 7, 1),
    Sketcher.Constraint("Coincident", 7, 2, 8, 1),
    Sketcher.Constraint("Coincident", 8, 2, 9, 1),
    Sketcher.Constraint("Coincident", 9, 2, 10, 1),
    Sketcher.Constraint("Coincident", 10, 2, 11, 1),
    Sketcher.Constraint("Coincident", 11, 2, 0, 1),
    Sketcher.Constraint("Coincident", 12, 2, 13, 1),
    Sketcher.Constraint("Coincident", 13, 2, 14, 1),
    Sketcher.Constraint("Coincident", 14, 2, 15, 1),
    Sketcher.Constraint("Coincident", 15, 2, 16, 1),
    Sketcher.Constraint("Coincident", 16, 2, 17, 1),
    Sketcher.Constraint("Coincident", 17, 2, 18, 1),
    Sketcher.Constraint("Coincident", 18, 2, 19, 1),
    Sketcher.Constraint("Coincident", 19, 2, 20, 1),
    Sketcher.Constraint("Coincident", 20, 2, 21, 1),
    Sketcher.Constraint("Coincident", 21, 2, 22, 1),
    Sketcher.Constraint("Coincident", 22, 2, 23, 1),
    Sketcher.Constraint("Coincident", 23, 2, 12, 1),
    Sketcher.Constraint("Vertical", 0),
    Sketcher.Constraint("Horizontal", 1),
    Sketcher.Constraint("Vertical", 2),
    Sketcher.Constraint("Horizontal", 3),
    Sketcher.Constraint("Vertical", 4),
    Sketcher.Constraint("Horizontal", 5),
    Sketcher.Constraint("Vertical", 6),
    Sketcher.Constraint("Horizontal", 7),
    Sketcher.Constraint("Vertical", 8),
    Sketcher.Constraint("Horizontal", 9),
    Sketcher.Constraint("Vertical", 10),
    Sketcher.Constraint("Horizontal", 11),
    Sketcher.Constraint("Vertical", 12),
    Sketcher.Constraint("Horizontal", 13),
    Sketcher.Constraint("Vertical", 14),
    Sketcher.Constraint("Horizontal", 15),
    Sketcher.Constraint("Vertical", 16),
    Sketcher.Constraint("Horizontal", 17),
    Sketcher.Constraint("Vertical", 18),
    Sketcher.Constraint("Horizontal", 19),
    Sketcher.Constraint("Vertical", 20),
    Sketcher.Constraint("Horizontal", 21),
    Sketcher.Constraint("Vertical", 22),
    Sketcher.Constraint("Horizontal", 23),
    Sketcher.Constraint("Horizontal", 5, 2, 8, 2),
    Sketcher.Constraint("Horizontal", 3, 2, 10, 2),
    Sketcher.Constraint("Horizontal", 13, 2, 16, 2),
    Sketcher.Constraint("Horizontal", 19, 2, 22, 2),
    Sketcher.Constraint("Vertical", 2, 2, 5, 2),
    Sketcher.Constraint("Vertical", 0, 2, 7, 2),
    Sketcher.Constraint("Vertical", 10, 2, 12, 2),
    Sketcher.Constraint("Vertical", 11, 2, 13, 2),
    Sketcher.Constraint("Vertical", 6, 2, 15, 2),
    Sketcher.Constraint("Vertical", 4, 2, 17, 2),
    Sketcher.Constraint("Vertical", 16, 2, 19, 2),
    Sketcher.Constraint("Vertical", 14, 2, 21, 2),
    Sketcher.Constraint("Equal", 5, 9),
    Sketcher.Constraint("Equal", 2, 4),
    Sketcher.Constraint("Equal", 10, 12),
    Sketcher.Constraint("Equal", 8, 14),
    Sketcher.Constraint("Equal", 18, 20),
    Sketcher.Constraint("DistanceY", 0, 2, 12, 2, Q("2 in")),
    Sketcher.Constraint("DistanceX", 1, 1, 1, 2, Q("0.1875 in")),
    Sketcher.Constraint("DistanceX", 3, 1, 3, 2, Q("0.09375 in")),
    Sketcher.Constraint("DistanceY", 0, 1, 0, 2, Q("0.125 in")),
    Sketcher.Constraint("DistanceY", 6, 2, 6, 1, Q("0.3125 in")),
    Sketcher.Constraint("DistanceY", -1, 1, 14, 2, Q("0.75 in")),
    Sketcher.Constraint("DistanceX", -1, 1, 0, 2, 23.787017),
])
pocket6 = body.newObject("PartDesign::Pocket", "Pocket005")
pocket6.Profile = sketch9
pocket6.Length = Q("0.25 in")
pocket6.Reversed = True

sketch10 = body.newObject("Sketcher::SketchObject", "Sketch009")
sketch10.AttachmentSupport = (doc.getObject("XZ_Plane"), [""])
sketch10.MapMode = "FlatFace"
sketch10.addGeometry([
    Part.LineSegment(App.Vector(49.2, 26.3, 0), App.Vector(49.2, 21.6, 0)),
    Part.LineSegment(App.Vector(49.2, 21.6, 0), App.Vector(52.4, 21.6, 0)),
    Part.LineSegment(App.Vector(52.4, 21.6, 0), App.Vector(52.4, 20, 0)),
    Part.LineSegment(App.Vector(52.4, 20, 0), App.Vector(55.6, 20, 0)),
    Part.LineSegment(App.Vector(55.6, 20, 0), App.Vector(55.6, 21.6, 0)),
    Part.LineSegment(App.Vector(55.6, 21.6, 0), App.Vector(63.5, 21.6, 0)),
    Part.LineSegment(App.Vector(63.5, 21.6, 0), App.Vector(63.5, 26.3, 0)),
    Part.LineSegment(App.Vector(63.5, 26.3, 0), App.Vector(55.6, 26.3, 0)),
    Part.LineSegment(App.Vector(55.6, 26.3, 0), App.Vector(55.6, 27.9, 0)),
    Part.LineSegment(App.Vector(55.6, 27.9, 0), App.Vector(52.4, 27.9, 0)),
    Part.LineSegment(App.Vector(52.4, 27.9, 0), App.Vector(52.4, 26.3, 0)),
    Part.LineSegment(App.Vector(52.4, 26.3, 0), App.Vector(49.2, 26.3, 0)),
    Part.LineSegment(App.Vector(52.4, -61.2, 0), App.Vector(52.4, -62.8, 0)),
    Part.LineSegment(App.Vector(52.4, -62.8, 0), App.Vector(55.6, -62.8, 0)),
    Part.LineSegment(App.Vector(55.6, -62.8, 0), App.Vector(55.6, -61.2, 0)),
    Part.LineSegment(App.Vector(55.6, -61.2, 0), App.Vector(63.5, -61.2, 0)),
    Part.LineSegment(App.Vector(63.5, -61.2, 0), App.Vector(63.5, -56.5, 0)),
    Part.LineSegment(App.Vector(63.5, -56.5, 0), App.Vector(55.6, -56.5, 0)),
    Part.LineSegment(App.Vector(55.6, -56.5, 0), App.Vector(55.6, -54.9, 0)),
    Part.LineSegment(App.Vector(55.6, -54.9, 0), App.Vector(52.4, -54.9, 0)),
    Part.LineSegment(App.Vector(52.4, -54.9, 0), App.Vector(52.4, -56.5, 0)),
    Part.LineSegment(App.Vector(52.4, -56.5, 0), App.Vector(49.2, -56.5, 0)),
    Part.LineSegment(App.Vector(49.2, -56.5, 0), App.Vector(49.2, -61.2, 0)),
    Part.LineSegment(App.Vector(49.2, -61.2, 0), App.Vector(52.4, -61.2, 0)),
], False)
sketch10.addConstraint([
    Sketcher.Constraint("Coincident", 0, 2, 1, 1),
    Sketcher.Constraint("Coincident", 1, 2, 2, 1),
    Sketcher.Constraint("Coincident", 2, 2, 3, 1),
    Sketcher.Constraint("Coincident", 3, 2, 4, 1),
    Sketcher.Constraint("Coincident", 4, 2, 5, 1),
    Sketcher.Constraint("Coincident", 5, 2, 6, 1),
    Sketcher.Constraint("Coincident", 6, 2, 7, 1),
    Sketcher.Constraint("Coincident", 7, 2, 8, 1),
    Sketcher.Constraint("Coincident", 8, 2, 9, 1),
    Sketcher.Constraint("Coincident", 9, 2, 10, 1),
    Sketcher.Constraint("Coincident", 10, 2, 11, 1),
    Sketcher.Constraint("Coincident", 11, 2, 0, 1),
    Sketcher.Constraint("Coincident", 12, 2, 13, 1),
    Sketcher.Constraint("Coincident", 13, 2, 14, 1),
    Sketcher.Constraint("Coincident", 14, 2, 15, 1),
    Sketcher.Constraint("Coincident", 15, 2, 16, 1),
    Sketcher.Constraint("Coincident", 16, 2, 17, 1),
    Sketcher.Constraint("Coincident", 17, 2, 18, 1),
    Sketcher.Constraint("Coincident", 18, 2, 19, 1),
    Sketcher.Constraint("Coincident", 19, 2, 20, 1),
    Sketcher.Constraint("Coincident", 20, 2, 21, 1),
    Sketcher.Constraint("Coincident", 21, 2, 22, 1),
    Sketcher.Constraint("Coincident", 22, 2, 23, 1),
    Sketcher.Constraint("Coincident", 23, 2, 12, 1),
    Sketcher.Constraint("Vertical", 0),
    Sketcher.Constraint("Horizontal", 1),
    Sketcher.Constraint("Vertical", 2),
    Sketcher.Constraint("Horizontal", 3),
    Sketcher.Constraint("Vertical", 4),
    Sketcher.Constraint("Horizontal", 5),
    Sketcher.Constraint("Vertical", 6),
    Sketcher.Constraint("Horizontal", 7),
    Sketcher.Constraint("Vertical", 8),
    Sketcher.Constraint("Horizontal", 9),
    Sketcher.Constraint("Vertical", 10),
    Sketcher.Constraint("Horizontal", 11),
    Sketcher.Constraint("Vertical", 12),
    Sketcher.Constraint("Horizontal", 13),
    Sketcher.Constraint("Vertical", 14),
    Sketcher.Constraint("Horizontal", 15),
    Sketcher.Constraint("Vertical", 16),
    Sketcher.Constraint("Horizontal", 17),
    Sketcher.Constraint("Vertical", 18),
    Sketcher.Constraint("Horizontal", 19),
    Sketcher.Constraint("Vertical", 20),
    Sketcher.Constraint("Horizontal", 21),
    Sketcher.Constraint("Vertical", 22),
    Sketcher.Constraint("Horizontal", 23),
    Sketcher.Constraint("Horizontal", 1, 2, 4, 2),
    Sketcher.Constraint("Horizontal", 7, 2, 10, 2),
    Sketcher.Constraint("Horizontal", 17, 2, 20, 2),
    Sketcher.Constraint("Horizontal", 15, 2, 22, 2),
    Sketcher.Constraint("Vertical", 4, 2, 7, 2),
    Sketcher.Constraint("Vertical", 2, 2, 9, 2),
    Sketcher.Constraint("Vertical", 10, 2, 12, 2),
    Sketcher.Constraint("Vertical", 8, 2, 13, 2),
    Sketcher.Constraint("Vertical", 6, 2, 15, 2),
    Sketcher.Constraint("Vertical", 14, 2, 17, 2),
    Sketcher.Constraint("Vertical", 12, 2, 19, 2),
    Sketcher.Constraint("Vertical", 11, 2, 21, 2),
    Sketcher.Constraint("Equal", 1, 3),
    Sketcher.Constraint("Equal", 4, 8),
    Sketcher.Constraint("Equal", 10, 12),
    Sketcher.Constraint("Equal", 6, 16),
    Sketcher.Constraint("Equal", 14, 18),
    Sketcher.Constraint("DistanceX", -1, 1, 5, 2, Q("2.5 in")),
    Sketcher.Constraint("DistanceX", 1, 1, 1, 2, Q("0.125 in")),
    Sketcher.Constraint("DistanceX", 5, 1, 5, 2, Q("0.3125 in")),
    Sketcher.Constraint("DistanceY", 0, 2, 0, 1, Q("0.1875 in")),
    Sketcher.Constraint("DistanceY", 2, 2, 2, 1, Q("0.0625 in")),
    Sketcher.Constraint("DistanceY", -1, 1, 0, 2, 21.550806),
    Sketcher.Constraint("DistanceY", 12, 2, -1, 1, 62.825806),
])
pocket7 = body.newObject("PartDesign::Pocket", "Pocket006")
pocket7.Profile = sketch10
pocket7.Length = Q("0.25 in")

sketch11 = body.newObject("Sketcher::SketchObject", "Sketch010")
sketch11.AttachmentSupport = (doc.getObject("XZ_Plane"), [""])
sketch11.MapMode = "FlatFace"
sketch11.AttachmentOffset = App.Placement(App.Vector(0, 0, -0.25 * 25.4), App.Rotation())
sketch11.addGeometry([
    Part.LineSegment(App.Vector(60, -15, 0), App.Vector(60, 17, 0)),
    Part.LineSegment(App.Vector(60, 17, 0), App.Vector(75, 17, 0)),
    Part.LineSegment(App.Vector(75, 17, 0), App.Vector(75, -15, 0)),
    Part.LineSegment(App.Vector(75, -15, 0), App.Vector(60, -15, 0)),
], False)
sketch11.addConstraint([
    Sketcher.Constraint("Coincident", 0, 2, 1, 1),
    Sketcher.Constraint("Coincident", 1, 2, 2, 1),
    Sketcher.Constraint("Coincident", 2, 2, 3, 1),
    Sketcher.Constraint("Coincident", 3, 2, 0, 1),
    Sketcher.Constraint("Vertical", 0),
    Sketcher.Constraint("Horizontal", 1),
    Sketcher.Constraint("Vertical", 2),
    Sketcher.Constraint("Horizontal", 3),
    Sketcher.Constraint("DistanceX", -1, 1, 0, 2, Q("2.375 in")),
    Sketcher.Constraint("DistanceY", -1, 1, 0, 2, Q("0.6875 in")),
    Sketcher.Constraint("DistanceX", 1, 1, 1, 2, 14.575398),
    Sketcher.Constraint("DistanceY", 0, 1, 0, 2, 32.310502),
])
pocket8 = body.newObject("PartDesign::Pocket", "Pocket007")
pocket8.Profile = sketch11
pocket8.Length = Q("0.25 in")
pocket8.Reversed = True

doc.recompute()
